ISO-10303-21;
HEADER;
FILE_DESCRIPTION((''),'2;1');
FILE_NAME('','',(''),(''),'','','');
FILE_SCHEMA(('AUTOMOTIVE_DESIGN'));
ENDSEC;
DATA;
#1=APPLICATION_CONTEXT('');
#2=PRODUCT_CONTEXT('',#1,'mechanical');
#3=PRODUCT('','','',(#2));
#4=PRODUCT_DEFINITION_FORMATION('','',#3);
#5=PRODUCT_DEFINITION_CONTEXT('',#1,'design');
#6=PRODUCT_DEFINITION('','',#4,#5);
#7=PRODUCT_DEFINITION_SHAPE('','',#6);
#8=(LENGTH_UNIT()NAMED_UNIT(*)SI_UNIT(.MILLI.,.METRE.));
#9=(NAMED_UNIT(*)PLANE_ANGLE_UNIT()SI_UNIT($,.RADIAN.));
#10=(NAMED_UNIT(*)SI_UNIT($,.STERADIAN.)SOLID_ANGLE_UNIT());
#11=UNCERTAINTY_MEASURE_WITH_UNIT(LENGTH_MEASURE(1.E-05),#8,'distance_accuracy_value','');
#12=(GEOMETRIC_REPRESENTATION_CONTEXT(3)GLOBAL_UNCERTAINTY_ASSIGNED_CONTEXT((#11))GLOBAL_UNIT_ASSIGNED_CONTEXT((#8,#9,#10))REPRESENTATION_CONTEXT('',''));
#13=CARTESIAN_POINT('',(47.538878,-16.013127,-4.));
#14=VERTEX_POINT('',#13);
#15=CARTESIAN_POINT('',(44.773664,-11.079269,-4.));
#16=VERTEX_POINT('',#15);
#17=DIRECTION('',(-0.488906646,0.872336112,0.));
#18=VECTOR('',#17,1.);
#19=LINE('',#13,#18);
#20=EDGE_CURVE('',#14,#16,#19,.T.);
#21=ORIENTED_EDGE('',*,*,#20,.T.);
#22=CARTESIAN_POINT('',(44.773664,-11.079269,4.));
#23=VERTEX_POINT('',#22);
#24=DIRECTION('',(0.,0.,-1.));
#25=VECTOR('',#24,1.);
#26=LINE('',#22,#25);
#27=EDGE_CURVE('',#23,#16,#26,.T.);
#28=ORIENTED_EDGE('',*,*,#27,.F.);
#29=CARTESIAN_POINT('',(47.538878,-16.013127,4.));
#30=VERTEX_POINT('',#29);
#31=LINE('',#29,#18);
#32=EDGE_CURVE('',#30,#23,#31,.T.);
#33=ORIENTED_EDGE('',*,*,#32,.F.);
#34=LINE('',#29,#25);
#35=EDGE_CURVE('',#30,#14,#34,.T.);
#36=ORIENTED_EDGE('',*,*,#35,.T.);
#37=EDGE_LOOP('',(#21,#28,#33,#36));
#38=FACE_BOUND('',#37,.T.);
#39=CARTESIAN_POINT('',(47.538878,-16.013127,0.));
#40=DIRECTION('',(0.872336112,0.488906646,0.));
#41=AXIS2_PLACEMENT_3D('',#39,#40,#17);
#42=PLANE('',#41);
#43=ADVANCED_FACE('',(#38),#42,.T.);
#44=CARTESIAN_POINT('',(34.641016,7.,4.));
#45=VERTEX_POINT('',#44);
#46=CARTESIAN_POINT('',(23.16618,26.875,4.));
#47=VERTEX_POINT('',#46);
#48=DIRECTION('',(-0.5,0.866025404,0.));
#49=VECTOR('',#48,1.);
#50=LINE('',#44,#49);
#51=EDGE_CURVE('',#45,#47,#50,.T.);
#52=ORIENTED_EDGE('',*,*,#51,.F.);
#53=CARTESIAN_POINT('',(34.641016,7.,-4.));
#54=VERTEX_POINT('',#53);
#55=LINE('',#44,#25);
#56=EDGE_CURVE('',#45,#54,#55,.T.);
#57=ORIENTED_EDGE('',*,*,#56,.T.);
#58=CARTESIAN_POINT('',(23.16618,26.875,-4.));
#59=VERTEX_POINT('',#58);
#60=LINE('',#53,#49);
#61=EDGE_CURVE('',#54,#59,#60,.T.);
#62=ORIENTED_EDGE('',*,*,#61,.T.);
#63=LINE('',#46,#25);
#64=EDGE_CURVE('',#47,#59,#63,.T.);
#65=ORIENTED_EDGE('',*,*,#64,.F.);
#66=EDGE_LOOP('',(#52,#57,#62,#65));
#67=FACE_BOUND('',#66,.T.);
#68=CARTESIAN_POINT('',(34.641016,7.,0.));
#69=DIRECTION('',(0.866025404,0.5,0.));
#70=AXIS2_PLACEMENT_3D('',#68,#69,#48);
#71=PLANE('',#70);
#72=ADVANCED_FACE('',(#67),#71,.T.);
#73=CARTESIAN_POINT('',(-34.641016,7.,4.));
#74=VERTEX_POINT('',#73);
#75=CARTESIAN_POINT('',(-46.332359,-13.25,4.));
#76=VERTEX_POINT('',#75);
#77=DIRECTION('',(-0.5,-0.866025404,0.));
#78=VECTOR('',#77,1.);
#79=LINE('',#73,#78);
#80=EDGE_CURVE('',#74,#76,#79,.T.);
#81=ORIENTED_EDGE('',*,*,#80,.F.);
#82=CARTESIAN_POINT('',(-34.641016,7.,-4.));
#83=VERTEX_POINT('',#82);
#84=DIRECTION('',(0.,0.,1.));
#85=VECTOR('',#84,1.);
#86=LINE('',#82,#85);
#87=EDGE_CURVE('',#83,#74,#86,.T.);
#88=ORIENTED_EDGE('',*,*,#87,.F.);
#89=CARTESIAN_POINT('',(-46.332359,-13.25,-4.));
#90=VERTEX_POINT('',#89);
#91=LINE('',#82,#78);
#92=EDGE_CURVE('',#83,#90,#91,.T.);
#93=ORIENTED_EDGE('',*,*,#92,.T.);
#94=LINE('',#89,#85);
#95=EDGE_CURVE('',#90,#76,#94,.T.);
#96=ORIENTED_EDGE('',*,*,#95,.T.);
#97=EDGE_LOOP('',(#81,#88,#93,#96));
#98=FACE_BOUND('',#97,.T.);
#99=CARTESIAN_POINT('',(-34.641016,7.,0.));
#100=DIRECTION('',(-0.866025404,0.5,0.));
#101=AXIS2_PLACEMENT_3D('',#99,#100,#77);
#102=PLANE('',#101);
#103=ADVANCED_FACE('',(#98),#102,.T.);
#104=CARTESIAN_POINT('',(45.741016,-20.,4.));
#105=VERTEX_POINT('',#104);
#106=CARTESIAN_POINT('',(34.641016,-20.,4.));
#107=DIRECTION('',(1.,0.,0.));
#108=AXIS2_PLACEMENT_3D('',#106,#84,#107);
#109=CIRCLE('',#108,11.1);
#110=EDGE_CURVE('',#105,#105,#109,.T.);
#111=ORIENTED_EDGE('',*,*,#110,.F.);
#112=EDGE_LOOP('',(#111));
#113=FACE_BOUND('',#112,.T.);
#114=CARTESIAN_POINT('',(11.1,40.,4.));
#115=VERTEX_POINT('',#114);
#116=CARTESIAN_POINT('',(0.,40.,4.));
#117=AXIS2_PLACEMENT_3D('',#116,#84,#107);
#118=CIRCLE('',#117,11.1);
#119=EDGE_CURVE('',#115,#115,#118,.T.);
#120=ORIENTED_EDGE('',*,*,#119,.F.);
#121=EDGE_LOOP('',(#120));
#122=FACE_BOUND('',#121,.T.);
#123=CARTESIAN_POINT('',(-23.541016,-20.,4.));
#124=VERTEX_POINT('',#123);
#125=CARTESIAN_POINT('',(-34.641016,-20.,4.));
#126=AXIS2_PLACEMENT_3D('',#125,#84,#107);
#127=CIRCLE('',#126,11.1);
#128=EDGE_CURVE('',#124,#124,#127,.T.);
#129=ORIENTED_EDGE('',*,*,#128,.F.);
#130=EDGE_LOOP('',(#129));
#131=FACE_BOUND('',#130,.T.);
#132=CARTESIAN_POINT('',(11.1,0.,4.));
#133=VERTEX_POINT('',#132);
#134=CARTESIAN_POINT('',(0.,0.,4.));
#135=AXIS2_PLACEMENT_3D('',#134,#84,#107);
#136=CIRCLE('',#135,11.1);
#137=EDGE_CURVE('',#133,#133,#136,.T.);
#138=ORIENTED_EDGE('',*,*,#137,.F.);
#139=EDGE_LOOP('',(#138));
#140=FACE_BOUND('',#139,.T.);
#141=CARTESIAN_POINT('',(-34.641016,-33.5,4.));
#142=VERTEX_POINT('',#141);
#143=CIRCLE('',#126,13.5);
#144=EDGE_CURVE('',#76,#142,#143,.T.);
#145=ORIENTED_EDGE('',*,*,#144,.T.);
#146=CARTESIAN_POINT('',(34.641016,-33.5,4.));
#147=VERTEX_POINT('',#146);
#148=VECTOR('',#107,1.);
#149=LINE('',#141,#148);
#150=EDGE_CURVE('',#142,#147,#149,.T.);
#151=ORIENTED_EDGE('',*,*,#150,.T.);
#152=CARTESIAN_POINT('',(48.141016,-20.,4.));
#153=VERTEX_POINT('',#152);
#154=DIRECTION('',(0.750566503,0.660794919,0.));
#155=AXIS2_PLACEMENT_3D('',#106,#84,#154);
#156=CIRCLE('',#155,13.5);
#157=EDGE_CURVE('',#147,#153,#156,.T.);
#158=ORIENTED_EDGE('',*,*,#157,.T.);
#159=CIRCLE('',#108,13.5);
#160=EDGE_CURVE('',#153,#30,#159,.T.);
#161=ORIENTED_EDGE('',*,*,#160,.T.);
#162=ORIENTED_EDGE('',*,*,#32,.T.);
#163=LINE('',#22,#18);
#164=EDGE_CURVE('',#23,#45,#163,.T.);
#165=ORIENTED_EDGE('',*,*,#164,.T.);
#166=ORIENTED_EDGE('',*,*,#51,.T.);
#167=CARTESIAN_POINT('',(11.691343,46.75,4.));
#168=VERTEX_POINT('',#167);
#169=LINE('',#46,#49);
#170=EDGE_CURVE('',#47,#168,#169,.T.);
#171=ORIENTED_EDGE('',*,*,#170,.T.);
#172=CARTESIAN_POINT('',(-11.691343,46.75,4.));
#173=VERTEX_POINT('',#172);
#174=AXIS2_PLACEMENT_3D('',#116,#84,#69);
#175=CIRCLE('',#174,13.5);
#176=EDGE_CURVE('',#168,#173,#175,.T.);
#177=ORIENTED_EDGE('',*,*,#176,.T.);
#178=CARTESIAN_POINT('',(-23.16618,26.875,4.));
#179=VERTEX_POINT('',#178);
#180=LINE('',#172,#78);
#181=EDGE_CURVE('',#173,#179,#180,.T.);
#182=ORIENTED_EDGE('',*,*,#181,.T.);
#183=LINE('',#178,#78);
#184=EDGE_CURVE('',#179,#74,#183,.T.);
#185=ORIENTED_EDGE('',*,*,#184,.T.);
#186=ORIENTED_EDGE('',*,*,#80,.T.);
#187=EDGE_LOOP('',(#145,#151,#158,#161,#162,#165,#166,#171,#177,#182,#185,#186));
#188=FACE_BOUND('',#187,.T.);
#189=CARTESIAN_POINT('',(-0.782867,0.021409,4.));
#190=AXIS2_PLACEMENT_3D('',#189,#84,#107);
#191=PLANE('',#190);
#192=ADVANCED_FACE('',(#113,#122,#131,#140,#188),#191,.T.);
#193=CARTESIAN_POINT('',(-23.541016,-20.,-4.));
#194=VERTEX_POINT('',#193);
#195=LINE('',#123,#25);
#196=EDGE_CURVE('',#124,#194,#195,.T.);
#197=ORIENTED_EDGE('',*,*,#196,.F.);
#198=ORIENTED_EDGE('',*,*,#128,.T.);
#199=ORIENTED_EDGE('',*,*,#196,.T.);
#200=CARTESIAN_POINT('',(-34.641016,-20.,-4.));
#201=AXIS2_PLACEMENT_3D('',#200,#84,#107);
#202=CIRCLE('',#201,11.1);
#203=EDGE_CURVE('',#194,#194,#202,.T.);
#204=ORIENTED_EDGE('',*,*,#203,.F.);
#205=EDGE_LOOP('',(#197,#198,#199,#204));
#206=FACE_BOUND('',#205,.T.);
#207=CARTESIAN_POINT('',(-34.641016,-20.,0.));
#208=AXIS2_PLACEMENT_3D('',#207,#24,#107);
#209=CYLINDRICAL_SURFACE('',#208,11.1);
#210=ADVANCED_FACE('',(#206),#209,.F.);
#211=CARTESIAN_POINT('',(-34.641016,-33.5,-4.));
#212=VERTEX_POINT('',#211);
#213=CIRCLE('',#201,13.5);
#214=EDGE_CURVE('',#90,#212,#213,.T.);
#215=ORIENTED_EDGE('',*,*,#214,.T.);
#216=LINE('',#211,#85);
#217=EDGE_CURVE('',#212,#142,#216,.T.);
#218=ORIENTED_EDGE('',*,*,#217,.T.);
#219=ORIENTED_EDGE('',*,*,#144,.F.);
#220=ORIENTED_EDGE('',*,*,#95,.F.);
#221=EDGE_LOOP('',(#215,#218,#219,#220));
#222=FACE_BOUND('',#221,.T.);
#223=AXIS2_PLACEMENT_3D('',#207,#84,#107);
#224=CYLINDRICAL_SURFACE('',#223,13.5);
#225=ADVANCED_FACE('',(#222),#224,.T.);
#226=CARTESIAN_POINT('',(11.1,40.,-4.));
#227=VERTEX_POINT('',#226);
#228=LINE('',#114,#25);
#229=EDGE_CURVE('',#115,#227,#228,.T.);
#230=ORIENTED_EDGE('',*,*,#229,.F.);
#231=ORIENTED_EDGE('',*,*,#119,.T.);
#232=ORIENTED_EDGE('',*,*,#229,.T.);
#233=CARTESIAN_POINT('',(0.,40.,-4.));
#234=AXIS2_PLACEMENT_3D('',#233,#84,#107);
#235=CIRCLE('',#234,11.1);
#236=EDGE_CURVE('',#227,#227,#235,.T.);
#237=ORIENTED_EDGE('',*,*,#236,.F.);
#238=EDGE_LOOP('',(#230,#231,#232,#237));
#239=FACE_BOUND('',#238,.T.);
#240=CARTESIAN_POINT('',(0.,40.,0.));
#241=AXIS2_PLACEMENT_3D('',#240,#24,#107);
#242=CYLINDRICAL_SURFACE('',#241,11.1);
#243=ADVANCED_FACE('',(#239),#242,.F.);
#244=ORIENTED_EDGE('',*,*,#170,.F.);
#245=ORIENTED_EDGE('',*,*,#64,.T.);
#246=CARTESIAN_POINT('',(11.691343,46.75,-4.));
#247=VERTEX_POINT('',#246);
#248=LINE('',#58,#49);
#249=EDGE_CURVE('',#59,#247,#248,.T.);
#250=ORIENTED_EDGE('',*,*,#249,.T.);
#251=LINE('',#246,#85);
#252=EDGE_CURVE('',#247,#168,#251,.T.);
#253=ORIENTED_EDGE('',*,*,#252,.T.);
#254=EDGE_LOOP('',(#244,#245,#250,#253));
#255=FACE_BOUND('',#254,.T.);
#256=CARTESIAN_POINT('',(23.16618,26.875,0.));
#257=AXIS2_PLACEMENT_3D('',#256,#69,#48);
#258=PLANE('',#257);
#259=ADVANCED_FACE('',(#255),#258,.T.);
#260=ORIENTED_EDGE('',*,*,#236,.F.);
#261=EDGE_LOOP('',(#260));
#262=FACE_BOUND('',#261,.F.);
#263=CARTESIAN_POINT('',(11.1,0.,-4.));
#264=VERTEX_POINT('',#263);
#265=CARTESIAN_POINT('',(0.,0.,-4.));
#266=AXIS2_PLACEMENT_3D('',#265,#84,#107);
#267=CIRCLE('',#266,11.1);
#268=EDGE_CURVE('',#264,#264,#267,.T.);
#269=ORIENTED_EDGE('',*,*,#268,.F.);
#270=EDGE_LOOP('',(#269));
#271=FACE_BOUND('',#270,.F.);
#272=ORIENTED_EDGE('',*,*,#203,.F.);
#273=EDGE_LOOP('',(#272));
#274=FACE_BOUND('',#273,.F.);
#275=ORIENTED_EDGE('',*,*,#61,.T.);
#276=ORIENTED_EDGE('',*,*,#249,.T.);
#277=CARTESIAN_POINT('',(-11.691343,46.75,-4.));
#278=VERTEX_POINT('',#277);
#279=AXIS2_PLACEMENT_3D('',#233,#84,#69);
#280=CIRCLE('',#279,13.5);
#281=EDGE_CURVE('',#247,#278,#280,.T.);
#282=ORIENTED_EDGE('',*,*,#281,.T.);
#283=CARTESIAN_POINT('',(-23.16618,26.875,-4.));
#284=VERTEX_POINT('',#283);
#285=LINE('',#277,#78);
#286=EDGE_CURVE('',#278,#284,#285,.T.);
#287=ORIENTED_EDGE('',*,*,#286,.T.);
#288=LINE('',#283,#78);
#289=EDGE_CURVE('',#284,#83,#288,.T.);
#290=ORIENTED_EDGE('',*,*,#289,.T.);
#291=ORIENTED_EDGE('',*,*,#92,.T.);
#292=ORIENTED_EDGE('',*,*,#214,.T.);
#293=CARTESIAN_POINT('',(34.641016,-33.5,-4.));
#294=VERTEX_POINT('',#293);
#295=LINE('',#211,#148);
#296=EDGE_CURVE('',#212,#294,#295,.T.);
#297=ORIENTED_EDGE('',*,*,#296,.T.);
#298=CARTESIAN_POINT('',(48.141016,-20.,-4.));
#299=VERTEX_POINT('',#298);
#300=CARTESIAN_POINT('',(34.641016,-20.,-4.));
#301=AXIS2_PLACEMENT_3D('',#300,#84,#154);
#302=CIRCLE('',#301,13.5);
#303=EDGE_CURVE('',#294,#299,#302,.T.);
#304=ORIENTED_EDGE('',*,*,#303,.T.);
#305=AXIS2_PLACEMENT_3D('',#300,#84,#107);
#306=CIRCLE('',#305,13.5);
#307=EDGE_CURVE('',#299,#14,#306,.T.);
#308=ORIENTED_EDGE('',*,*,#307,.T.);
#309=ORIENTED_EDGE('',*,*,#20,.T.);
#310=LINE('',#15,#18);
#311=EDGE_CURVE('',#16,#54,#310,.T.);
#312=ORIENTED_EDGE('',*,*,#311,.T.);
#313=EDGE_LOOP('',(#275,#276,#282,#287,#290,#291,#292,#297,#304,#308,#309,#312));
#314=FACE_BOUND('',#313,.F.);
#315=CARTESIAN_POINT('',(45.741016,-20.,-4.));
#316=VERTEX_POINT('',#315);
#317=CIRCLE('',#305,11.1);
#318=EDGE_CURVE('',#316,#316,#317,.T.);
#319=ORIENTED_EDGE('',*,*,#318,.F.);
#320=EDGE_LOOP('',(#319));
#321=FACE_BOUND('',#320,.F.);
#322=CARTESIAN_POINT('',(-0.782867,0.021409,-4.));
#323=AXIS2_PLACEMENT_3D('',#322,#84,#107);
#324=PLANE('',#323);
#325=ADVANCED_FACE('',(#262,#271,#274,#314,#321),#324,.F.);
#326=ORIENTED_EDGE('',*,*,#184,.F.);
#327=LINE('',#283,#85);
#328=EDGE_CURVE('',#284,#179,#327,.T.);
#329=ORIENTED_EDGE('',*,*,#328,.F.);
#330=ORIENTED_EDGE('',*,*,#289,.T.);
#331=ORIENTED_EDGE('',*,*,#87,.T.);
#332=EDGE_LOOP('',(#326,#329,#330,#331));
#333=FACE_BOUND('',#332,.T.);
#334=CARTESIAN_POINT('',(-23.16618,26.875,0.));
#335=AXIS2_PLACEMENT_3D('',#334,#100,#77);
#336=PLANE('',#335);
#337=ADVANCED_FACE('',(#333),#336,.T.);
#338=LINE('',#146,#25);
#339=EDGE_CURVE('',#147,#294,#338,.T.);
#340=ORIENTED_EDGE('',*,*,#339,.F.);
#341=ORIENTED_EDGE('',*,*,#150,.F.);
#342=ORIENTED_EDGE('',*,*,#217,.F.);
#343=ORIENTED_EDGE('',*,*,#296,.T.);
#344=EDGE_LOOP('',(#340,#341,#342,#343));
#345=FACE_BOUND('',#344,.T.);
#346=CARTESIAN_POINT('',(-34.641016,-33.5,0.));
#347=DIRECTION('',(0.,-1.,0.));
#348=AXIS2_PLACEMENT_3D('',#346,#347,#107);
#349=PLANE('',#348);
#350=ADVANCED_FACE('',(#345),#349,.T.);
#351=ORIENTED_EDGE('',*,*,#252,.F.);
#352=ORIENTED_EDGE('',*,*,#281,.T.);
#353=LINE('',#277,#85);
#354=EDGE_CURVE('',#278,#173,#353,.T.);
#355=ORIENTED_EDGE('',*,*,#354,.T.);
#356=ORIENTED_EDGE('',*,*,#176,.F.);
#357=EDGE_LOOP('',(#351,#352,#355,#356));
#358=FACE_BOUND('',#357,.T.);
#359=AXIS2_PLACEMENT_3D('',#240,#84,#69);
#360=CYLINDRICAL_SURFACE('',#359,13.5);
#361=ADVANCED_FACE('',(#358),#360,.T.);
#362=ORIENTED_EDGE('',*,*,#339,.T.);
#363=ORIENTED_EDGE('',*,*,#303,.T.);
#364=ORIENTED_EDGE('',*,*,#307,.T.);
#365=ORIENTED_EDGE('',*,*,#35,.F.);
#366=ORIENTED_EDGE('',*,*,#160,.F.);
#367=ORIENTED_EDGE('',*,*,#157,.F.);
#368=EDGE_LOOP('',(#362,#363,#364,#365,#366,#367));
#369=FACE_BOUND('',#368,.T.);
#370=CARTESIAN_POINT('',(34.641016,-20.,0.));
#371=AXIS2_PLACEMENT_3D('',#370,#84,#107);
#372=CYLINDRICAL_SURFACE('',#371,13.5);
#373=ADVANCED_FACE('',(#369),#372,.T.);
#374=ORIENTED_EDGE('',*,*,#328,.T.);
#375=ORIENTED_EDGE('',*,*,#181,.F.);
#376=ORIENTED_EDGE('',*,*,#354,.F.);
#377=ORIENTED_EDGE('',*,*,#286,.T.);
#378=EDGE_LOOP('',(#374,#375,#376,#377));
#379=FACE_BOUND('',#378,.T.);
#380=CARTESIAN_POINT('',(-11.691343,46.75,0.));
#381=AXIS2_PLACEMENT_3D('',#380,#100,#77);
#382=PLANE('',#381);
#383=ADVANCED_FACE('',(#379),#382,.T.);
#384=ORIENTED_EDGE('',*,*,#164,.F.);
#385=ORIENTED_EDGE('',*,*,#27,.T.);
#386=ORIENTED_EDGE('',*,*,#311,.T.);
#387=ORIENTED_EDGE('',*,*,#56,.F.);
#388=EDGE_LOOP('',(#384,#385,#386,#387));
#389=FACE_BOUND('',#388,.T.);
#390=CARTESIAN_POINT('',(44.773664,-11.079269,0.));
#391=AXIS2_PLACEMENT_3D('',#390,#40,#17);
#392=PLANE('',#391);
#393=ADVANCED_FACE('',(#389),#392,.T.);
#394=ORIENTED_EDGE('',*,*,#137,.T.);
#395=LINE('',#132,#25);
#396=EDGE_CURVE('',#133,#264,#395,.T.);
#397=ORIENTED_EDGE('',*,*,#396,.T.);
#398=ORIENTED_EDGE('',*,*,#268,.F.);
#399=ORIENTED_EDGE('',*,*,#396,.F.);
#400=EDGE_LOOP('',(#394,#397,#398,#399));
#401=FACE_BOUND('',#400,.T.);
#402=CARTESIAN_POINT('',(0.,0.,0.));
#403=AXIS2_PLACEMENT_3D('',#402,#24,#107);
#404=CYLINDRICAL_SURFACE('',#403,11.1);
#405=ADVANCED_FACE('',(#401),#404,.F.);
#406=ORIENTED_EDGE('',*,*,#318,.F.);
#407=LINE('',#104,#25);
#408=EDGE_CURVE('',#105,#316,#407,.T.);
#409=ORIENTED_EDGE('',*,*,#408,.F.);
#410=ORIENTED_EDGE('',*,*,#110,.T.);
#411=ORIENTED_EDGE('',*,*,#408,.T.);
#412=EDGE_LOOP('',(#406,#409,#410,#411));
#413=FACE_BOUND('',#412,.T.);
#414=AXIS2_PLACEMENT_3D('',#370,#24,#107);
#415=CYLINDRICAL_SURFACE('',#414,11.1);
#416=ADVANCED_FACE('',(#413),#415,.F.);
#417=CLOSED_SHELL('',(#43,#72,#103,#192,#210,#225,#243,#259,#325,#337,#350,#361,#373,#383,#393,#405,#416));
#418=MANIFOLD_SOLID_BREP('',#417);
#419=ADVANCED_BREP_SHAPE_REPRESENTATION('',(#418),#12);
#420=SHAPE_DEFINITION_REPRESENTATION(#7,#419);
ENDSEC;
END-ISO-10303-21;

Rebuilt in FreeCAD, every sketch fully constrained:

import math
import FreeCAD as App
import Part
import Sketcher

V = App.Vector
Q = App.Units.Quantity

doc = App.newDocument("Part")
body = doc.addObject("PartDesign::Body", "Body")

# Sketch on XY plane
sketch1 = doc.addObject("Sketcher::SketchObject", "Sketch")
body.addObject(sketch1)
sketch1.AttachmentSupport = (doc.XY_Plane, [""])
sketch1.MapMode = "FlatFace"
sketch1.addGeometry([
    Part.LineSegment(V(-18, 5, 0), V(-42, -9, 0)),  # 0
    Part.ArcOfCircle(Part.Circle(V(-35, -20, 0), V(0, 0, 1), 14), math.radians(-60), math.radians(120)),  # 1
    Part.LineSegment(V(-29, -32, 0), V(-5, -18, 0)),  # 2
    Part.ArcOfCircle(Part.Circle(V(0, -27, 0), V(0, 0, 1), 10), math.radians(60), math.radians(120)),  # 3
    Part.LineSegment(V(5, -18, 0), V(29, -32, 0)),  # 4
    Part.ArcOfCircle(Part.Circle(V(36, -21, 0), V(0, 0, 1), 13), math.radians(60), math.radians(240)),  # 5
    Part.LineSegment(V(42, -9, 0), V(18, 5, 0)),  # 6
    Part.ArcOfCircle(Part.Circle(V(24, 13, 0), V(0, 0, 1), 10), math.radians(180), math.radians(240)),  # 7
    Part.LineSegment(V(14, 13, 0), V(14, 40, 0)),  # 8
    Part.ArcOfCircle(Part.Circle(V(0, 40, 0), V(0, 0, 1), 14), math.radians(180), math.radians(360)),  # 9
    Part.LineSegment(V(-14, 40, 0), V(-14, 14, 0)),  # 10
    Part.ArcOfCircle(Part.Circle(V(-24, 14, 0), V(0, 0, 1), 10), math.radians(-60), math.radians(0)),  # 11
    Part.Circle(V(0, 0, 0), V(0, 0, 1), 13),  # 12
], False)
sketch1.addConstraint([
    Sketcher.Constraint("Tangent", 0, 2, 1, 2),
    Sketcher.Constraint("Tangent", 1, 1, 2, 1),
    Sketcher.Constraint("Tangent", 2, 2, 3, 2),
    Sketcher.Constraint("Tangent", 3, 1, 4, 1),
    Sketcher.Constraint("Tangent", 4, 2, 5, 2),
    Sketcher.Constraint("Tangent", 5, 1, 6, 1),
    Sketcher.Constraint("Tangent", 6, 2, 7, 2),
    Sketcher.Constraint("Tangent", 7, 1, 8, 1),
    Sketcher.Constraint("Tangent", 8, 2, 9, 2),
    Sketcher.Constraint("Tangent", 9, 1, 10, 1),
    Sketcher.Constraint("Tangent", 10, 2, 11, 2),
    Sketcher.Constraint("Tangent", 11, 1, 0, 1),
    Sketcher.Constraint("Vertical", 8),
    Sketcher.Constraint("Vertical", 10),
    Sketcher.Constraint("Coincident", 12, 3, -1, 1),
    Sketcher.Constraint("Equal", 3, 7),
    Sketcher.Constraint("Equal", 1, 9),
    Sketcher.Constraint("Equal", 7, 11),
    Sketcher.Constraint("Symmetric", 2, 2, 3, 1, -2),
    Sketcher.Constraint("PointOnObject", 9, 3, -2),
    Sketcher.Constraint("Parallel", 0, 2),
    Sketcher.Constraint("Equal", 0, 2),
    Sketcher.Constraint("Diameter", 12, Q("26 mm")),
    Sketcher.Constraint("Radius", 3, Q("10 mm")),
    Sketcher.Constraint("Radius", 1, Q("13.5 mm")),
    Sketcher.Constraint("Radius", 5, Q("13.399534 mm")),
    Sketcher.Constraint("Distance", 4, Q("27.7617 mm")),
    Sketcher.Constraint("Distance", 0, Q("27.374261 mm")),
    Sketcher.Constraint("Distance", 6, Q("27.83776 mm")),
    Sketcher.Constraint("DistanceY", 8, 1, 8, 2, Q("26.692274 mm")),
    Sketcher.Constraint("DistanceY", 5, 3, -1, 1, Q("20.751722 mm")),
])
pad1 = doc.addObject("PartDesign::Pad", "Pad")
body.addObject(pad1)
pad1.Profile = sketch1
pad1.Length = 8
pad1.Midplane = True

# Sketch on XY plane
sketch2 = doc.addObject("Sketcher::SketchObject", "Sketch001")
body.addObject(sketch2)
sketch2.AttachmentSupport = (doc.XY_Plane, [""])
sketch2.MapMode = "FlatFace"
sketch2.addGeometry([
    Part.LineSegment(V(23.2, 26.9, 0), V(11.7, 46.8, 0)),  # 0
    Part.ArcOfCircle(Part.Circle(V(0, 40, 0), V(0, 0, 1), 13.5), math.radians(30), math.radians(150)),  # 1
    Part.LineSegment(V(-11.7, 46.8, 0), V(-23.2, 26.9, 0)),  # 2
    Part.LineSegment(V(-23.2, 26.9, 0), V(-34.6, 7, 0)),  # 3
    Part.LineSegment(V(-34.6, 7, 0), V(-46.3, -13.2, 0)),  # 4
    Part.ArcOfCircle(Part.Circle(V(-34.6, -20, 0), V(0, 0, 1), 13.5), math.radians(150), math.radians(270)),  # 5
    Part.LineSegment(V(-34.6, -33.5, 0), V(34.6, -33.5, 0)),  # 6
    Part.ArcOfCircle(Part.Circle(V(34.6, -20, 0), V(0, 0, 1), 13.5), math.radians(-90), math.radians(0)),  # 7
    Part.ArcOfCircle(Part.Circle(V(34.6, -20, 0), V(0, 0, 1), 13.5), math.radians(0), math.radians(17.18)),  # 8
    Part.LineSegment(V(47.5, -16, 0), V(44.8, -11.1, 0)),  # 9
    Part.LineSegment(V(44.8, -11.1, 0), V(34.6, 7, 0)),  # 10
    Part.LineSegment(V(34.6, 7, 0), V(23.2, 26.9, 0)),  # 11
    Part.Circle(V(-34.6, -20, 0), V(0, 0, 1), 11.1),  # 12
    Part.Circle(V(34.6, -20, 0), V(0, 0, 1), 11.1),  # 13
    Part.Circle(V(0, 0, 0), V(0, 0, 1), 11.1),  # 14
    Part.Circle(V(0, 40, 0), V(0, 0, 1), 11.1),  # 15
], False)
sketch2.addConstraint([
    Sketcher.Constraint("Tangent", 0, 2, 1, 1),
    Sketcher.Constraint("Tangent", 1, 2, 2, 1),
    Sketcher.Constraint("Coincident", 2, 2, 3, 1),
    Sketcher.Constraint("Coincident", 3, 2, 4, 1),
    Sketcher.Constraint("Tangent", 4, 2, 5, 1),
    Sketcher.Constraint("Tangent", 5, 2, 6, 1),
    Sketcher.Constraint("Tangent", 6, 2, 7, 1),
    Sketcher.Constraint("Tangent", 7, 2, 8, 1),
    Sketcher.Constraint("Coincident", 8, 2, 9, 1),
    Sketcher.Constraint("Coincident", 9, 2, 10, 1),
    Sketcher.Constraint("Coincident", 10, 2, 11, 1),
    Sketcher.Constraint("Coincident", 11, 2, 0, 1),
    Sketcher.Constraint("Horizontal", 6),
    Sketcher.Constraint("Coincident", 14, 3, -1, 1),
    Sketcher.Constraint("Coincident", 12, 3, 5, 3),
    Sketcher.Constraint("Coincident", 13, 3, 7, 3),
    Sketcher.Constraint("Coincident", 15, 3, 1, 3),
    Sketcher.Constraint("Equal", 1, 5),
    Sketcher.Constraint("Equal", 5, 7),
    Sketcher.Constraint("Equal", 7, 8),
    Sketcher.Constraint("Equal", 12, 13),
    Sketcher.Constraint("Equal", 13, 14),
    Sketcher.Constraint("Equal", 14, 15),
    Sketcher.Constraint("Symmetric", 0, 2, 1, 2, -2),
    Sketcher.Constraint("Symmetric", 3, 2, 10, 2, -2),
    Sketcher.Constraint("Parallel", 2, 3),
    Sketcher.Constraint("Parallel", 3, 4),
    Sketcher.Constraint("Parallel", 9, 10),
    Sketcher.Constraint("Horizontal", 13, 3, 7, 2),
    Sketcher.Constraint("Horizontal", 2, 2, 11, 2),
    Sketcher.Constraint("Vertical", 12, 3, 3, 2),
    Sketcher.Constraint("Vertical", 6, 2, 10, 2),
    Sketcher.Constraint("Equal", 2, 3),
    Sketcher.Constraint("Diameter", 12, Q("22.2 mm")),
    Sketcher.Constraint("Radius", 1, Q("13.5 mm")),
    Sketcher.Constraint("Angle", 0, Q("120 deg")),
    Sketcher.Constraint("DistanceY", -1, 1, 1, 3, Q("40 mm")),
    Sketcher.Constraint("DistanceY", 5, 3, -1, 1, Q("20 mm")),
    Sketcher.Constraint("DistanceX", -1, 1, 8, 2, Q("47.538878 mm")),
    Sketcher.Constraint("DistanceY", 9, 2, -1, 1, Q("11.079269 mm")),
])
pad2 = doc.addObject("PartDesign::Pad", "Pad001")
body.addObject(pad2)
pad2.Profile = sketch2
pad2.Length = 8
pad2.Midplane = True

doc.recompute()
